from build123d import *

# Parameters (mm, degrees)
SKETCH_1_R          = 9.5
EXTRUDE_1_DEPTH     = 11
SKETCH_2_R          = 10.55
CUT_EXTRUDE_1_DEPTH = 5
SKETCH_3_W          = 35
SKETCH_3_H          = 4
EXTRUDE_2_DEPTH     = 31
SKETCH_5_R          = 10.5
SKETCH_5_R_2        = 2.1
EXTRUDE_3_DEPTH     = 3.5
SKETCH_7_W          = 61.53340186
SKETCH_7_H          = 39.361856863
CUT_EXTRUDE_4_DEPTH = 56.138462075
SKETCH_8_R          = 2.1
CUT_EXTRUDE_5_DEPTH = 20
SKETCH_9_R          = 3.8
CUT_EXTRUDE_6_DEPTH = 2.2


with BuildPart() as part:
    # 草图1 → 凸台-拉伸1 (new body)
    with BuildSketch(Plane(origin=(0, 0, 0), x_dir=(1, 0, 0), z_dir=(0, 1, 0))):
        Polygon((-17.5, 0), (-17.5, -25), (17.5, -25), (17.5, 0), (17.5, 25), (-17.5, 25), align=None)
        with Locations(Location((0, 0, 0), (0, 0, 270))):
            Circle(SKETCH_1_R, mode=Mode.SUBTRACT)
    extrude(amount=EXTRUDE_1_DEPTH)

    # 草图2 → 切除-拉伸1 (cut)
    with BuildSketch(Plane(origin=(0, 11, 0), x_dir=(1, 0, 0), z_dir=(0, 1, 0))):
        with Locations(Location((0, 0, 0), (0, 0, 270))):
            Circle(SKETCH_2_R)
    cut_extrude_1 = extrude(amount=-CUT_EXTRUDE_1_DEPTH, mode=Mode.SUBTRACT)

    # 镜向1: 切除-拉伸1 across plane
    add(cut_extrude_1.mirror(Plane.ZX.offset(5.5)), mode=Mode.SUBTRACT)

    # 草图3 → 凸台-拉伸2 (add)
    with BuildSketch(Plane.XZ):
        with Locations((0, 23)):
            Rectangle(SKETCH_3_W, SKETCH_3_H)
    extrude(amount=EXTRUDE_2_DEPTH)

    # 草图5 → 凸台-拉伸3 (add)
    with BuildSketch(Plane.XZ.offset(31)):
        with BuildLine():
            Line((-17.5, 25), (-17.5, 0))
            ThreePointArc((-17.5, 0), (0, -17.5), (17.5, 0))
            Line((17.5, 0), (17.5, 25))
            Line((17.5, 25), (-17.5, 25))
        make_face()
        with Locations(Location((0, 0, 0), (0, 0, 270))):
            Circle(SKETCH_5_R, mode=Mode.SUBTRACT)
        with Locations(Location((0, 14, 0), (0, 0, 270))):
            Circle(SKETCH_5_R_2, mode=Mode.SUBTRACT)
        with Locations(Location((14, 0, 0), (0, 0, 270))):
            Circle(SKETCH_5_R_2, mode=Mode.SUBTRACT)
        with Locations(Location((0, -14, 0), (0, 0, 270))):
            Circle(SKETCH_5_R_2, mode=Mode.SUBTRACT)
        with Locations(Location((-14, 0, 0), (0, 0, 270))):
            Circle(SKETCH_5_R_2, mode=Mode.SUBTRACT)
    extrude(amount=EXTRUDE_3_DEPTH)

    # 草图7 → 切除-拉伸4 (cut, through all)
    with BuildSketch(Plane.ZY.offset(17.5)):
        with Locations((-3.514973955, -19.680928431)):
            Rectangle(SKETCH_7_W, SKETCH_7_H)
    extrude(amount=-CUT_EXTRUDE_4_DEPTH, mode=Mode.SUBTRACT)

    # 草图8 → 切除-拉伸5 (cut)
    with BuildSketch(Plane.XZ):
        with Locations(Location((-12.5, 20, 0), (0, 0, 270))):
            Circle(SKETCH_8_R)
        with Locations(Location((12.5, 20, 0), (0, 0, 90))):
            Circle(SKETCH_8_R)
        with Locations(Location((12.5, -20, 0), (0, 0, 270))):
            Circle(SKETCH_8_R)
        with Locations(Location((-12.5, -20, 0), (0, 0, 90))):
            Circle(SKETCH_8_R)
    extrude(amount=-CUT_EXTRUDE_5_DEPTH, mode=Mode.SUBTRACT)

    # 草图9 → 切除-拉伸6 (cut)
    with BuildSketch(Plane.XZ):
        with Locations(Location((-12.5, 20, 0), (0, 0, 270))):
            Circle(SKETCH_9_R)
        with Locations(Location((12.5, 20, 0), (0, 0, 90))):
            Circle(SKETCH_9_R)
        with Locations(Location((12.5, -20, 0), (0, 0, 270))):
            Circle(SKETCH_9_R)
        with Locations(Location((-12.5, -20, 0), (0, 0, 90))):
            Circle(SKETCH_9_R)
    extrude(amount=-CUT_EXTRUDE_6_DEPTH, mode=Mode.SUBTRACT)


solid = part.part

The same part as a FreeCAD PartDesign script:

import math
import FreeCAD as App
import Part
import Sketcher
Q = App.Units.Quantity


def add_polygon(sketch, points):
    """Adds a closed chain of lines whose ends are joined by coincident constraints."""
    first, n = sketch.GeometryCount, len(points)
    for a, b in zip(points, points[1:] + points[:1]):
        sketch.addGeometry(Part.LineSegment(App.Vector(*a, 0), App.Vector(*b, 0)), False)
    for i in range(n):
        sketch.addConstraint(Sketcher.Constraint("Coincident", first + i, 2, first + (i + 1) % n, 1))

doc = App.newDocument("Part")
body = doc.addObject("PartDesign::Body", "Body")

# Sketch on XZ plane
sketch1 = body.newObject("Sketcher::SketchObject", "Sketch")
sketch1.AttachmentSupport = (doc.getObject("XZ_Plane"), [""])
sketch1.MapMode = "FlatFace"
add_polygon(sketch1, [(-18, 25), (18, 25), (18, -25), (-18, -25)])  # lines 0-3
sketch1.addGeometry(Part.Circle(App.Vector(0, 0, 0), App.Vector(0, 0, 1), 10), False)  # 4
sketch1.addConstraint(Sketcher.Constraint("Horizontal", 0))
sketch1.addConstraint(Sketcher.Constraint("Vertical", 1))
sketch1.addConstraint(Sketcher.Constraint("Horizontal", 2))
sketch1.addConstraint(Sketcher.Constraint("Vertical", 3))
sketch1.addConstraint(Sketcher.Constraint("Coincident", 4, 3, -1, 1))
sketch1.addConstraint(Sketcher.Constraint("Symmetric", 0, 2, 2, 2, -1, 1))
sketch1.addConstraint(Sketcher.Constraint("Diameter", 4, Q("19 mm")))
sketch1.addConstraint(Sketcher.Constraint("DistanceX", 0, 1, 0, 2, Q("35 mm")))
sketch1.addConstraint(Sketcher.Constraint("DistanceY", 1, 2, 1, 1, Q("50 mm")))
pad1 = body.newObject("PartDesign::Pad", "Pad")
pad1.Profile = sketch1
pad1.Length = 11
pad1.Reversed = True

# Sketch on XZ plane
sketch2 = body.newObject("Sketcher::SketchObject", "Sketch001")
sketch2.AttachmentSupport = (doc.getObject("XZ_Plane"), [""])
sketch2.MapMode = "FlatFace"
sketch2.AttachmentOffset = App.Placement(App.Vector(0, 0, -11), App.Rotation())
sketch2.addGeometry(Part.Circle(App.Vector(0, 0, 0), App.Vector(0, 0, 1), 11), False)
sketch2.addConstraint(Sketcher.Constraint("Coincident", 0, 3, -1, 1))
sketch2.addConstraint(Sketcher.Constraint("Diameter", 0, Q("21.1 mm")))
pocket1 = body.newObject("PartDesign::Pocket", "Pocket")
pocket1.Profile = sketch2
pocket1.Length = 5
pocket1.Reversed = True
doc.recompute()

datumplane = body.newObject("PartDesign::Plane", "DatumPlane")
datumplane.AttachmentSupport = (doc.getObject("XZ_Plane"), [""])
datumplane.MapMode = "FlatFace"
datumplane.AttachmentOffset = App.Placement(App.Vector(0, 0, -5.5), App.Rotation())
mirrored = body.newObject("PartDesign::Mirrored", "Mirrored")
mirrored.Originals = [pocket1]
mirrored.MirrorPlane = (datumplane, [""])
body.Tip = mirrored

# Sketch on XZ plane
sketch3 = body.newObject("Sketcher::SketchObject", "Sketch002")
sketch3.AttachmentSupport = (doc.getObject("XZ_Plane"), [""])
sketch3.MapMode = "FlatFace"
add_polygon(sketch3, [(-17.5, 25), (-17.5, 21), (17.5, 21), (17.5, 25)])  # lines 0-3
sketch3.addConstraint(Sketcher.Constraint("Vertical", 0))
sketch3.addConstraint(Sketcher.Constraint("Horizontal", 1))
sketch3.addConstraint(Sketcher.Constraint("Vertical", 2))
sketch3.addConstraint(Sketcher.Constraint("Horizontal", 3))
sketch3.addConstraint(Sketcher.Constraint("DistanceX", 1, 1, 1, 2, Q("35 mm")))
sketch3.addConstraint(Sketcher.Constraint("DistanceY", 0, 2, 0, 1, Q("4 mm")))
sketch3.addConstraint(Sketcher.Constraint("DistanceY", -1, 1, 0, 2, Q("21 mm")))
sketch3.addConstraint(Sketcher.Constraint("DistanceX", 0, 2, -1, 1, Q("17.5 mm")))
pad2 = body.newObject("PartDesign::Pad", "Pad001")
pad2.Profile = sketch3
pad2.Length = 31

# Sketch on XZ plane
sketch4 = body.newObject("Sketcher::SketchObject", "Sketch003")
sketch4.AttachmentSupport = (doc.getObject("XZ_Plane"), [""])
sketch4.MapMode = "FlatFace"
sketch4.AttachmentOffset = App.Placement(App.Vector(0, 0, 31), App.Rotation())
sketch4.addGeometry(Part.LineSegment(App.Vector(-17.5, 25, 0), App.Vector(-17.5, 0, 0)), False)
sketch4.addGeometry(Part.ArcOfCircle(Part.Circle(App.Vector(0, 0, 0), App.Vector(0, 0, 1), 17.5), math.radians(180), math.radians(360)), False)
sketch4.addGeometry(Part.LineSegment(App.Vector(17.5, 0, 0), App.Vector(17.5, 25, 0)), False)
sketch4.addGeometry(Part.LineSegment(App.Vector(17.5, 25, 0), App.Vector(-17.5, 25, 0)), False)
sketch4.addGeometry(Part.Circle(App.Vector(0, -14, 0), App.Vector(0, 0, 1), 2.1), False)
sketch4.addGeometry(Part.Circle(App.Vector(-14, 0, 0), App.Vector(0, 0, 1), 2.1), False)
sketch4.addGeometry(Part.Circle(App.Vector(0, 0, 0), App.Vector(0, 0, 1), 10.5), False)
sketch4.addGeometry(Part.Circle(App.Vector(14, 0, 0), App.Vector(0, 0, 1), 2.1), False)
sketch4.addGeometry(Part.Circle(App.Vector(0, 14, 0), App.Vector(0, 0, 1), 2.1), False)
sketch4.addConstraint(Sketcher.Constraint("Tangent", 0, 2, 1, 1))
sketch4.addConstraint(Sketcher.Constraint("Tangent", 1, 2, 2, 1))
sketch4.addConstraint(Sketcher.Constraint("Coincident", 2, 2, 3, 1))
sketch4.addConstraint(Sketcher.Constraint("Coincident", 3, 2, 0, 1))
sketch4.addConstraint(Sketcher.Constraint("Vertical", 0))
sketch4.addConstraint(Sketcher.Constraint("Vertical", 2))
sketch4.addConstraint(Sketcher.Constraint("Horizontal", 3))
sketch4.addConstraint(Sketcher.Constraint("Coincident", 1, 3, -1, 1))
sketch4.addConstraint(Sketcher.Constraint("Coincident", 6, 3, -1, 1))
sketch4.addConstraint(Sketcher.Constraint("Equal", 4, 5))
sketch4.addConstraint(Sketcher.Constraint("Equal", 5, 7))
sketch4.addConstraint(Sketcher.Constraint("Equal", 7, 8))
sketch4.addConstraint(Sketcher.Constraint("Symmetric", 5, 3, 7, 3, -1, 1))
sketch4.addConstraint(Sketcher.Constraint("Symmetric", 4, 3, 8, 3, -1, 1))
sketch4.addConstraint(Sketcher.Constraint("PointOnObject", 4, 3, -2))
sketch4.addConstraint(Sketcher.Constraint("PointOnObject", 5, 3, -1))
sketch4.addConstraint(Sketcher.Constraint("Diameter", 6, Q("21 mm")))
sketch4.addConstraint(Sketcher.Constraint("Diameter", 4, Q("4.2 mm")))
sketch4.addConstraint(Sketcher.Constraint("Radius", 1, Q("17.5 mm")))
sketch4.addConstraint(Sketcher.Constraint("DistanceY", 0, 2, 0, 1, Q("25 mm")))
sketch4.addConstraint(Sketcher.Constraint("DistanceY", 4, 3, -1, 1, Q("14 mm")))
sketch4.addConstraint(Sketcher.Constraint("DistanceX", 5, 3, -1, 1, Q("14 mm")))
pad3 = body.newObject("PartDesign::Pad", "Pad002")
pad3.Profile = sketch4
pad3.Length = 3.5

# Sketch on YZ plane
sketch5 = body.newObject("Sketcher::SketchObject", "Sketch004")
sketch5.AttachmentSupport = (doc.getObject("YZ_Plane"), [""])
sketch5.MapMode = "FlatFace"
sketch5.AttachmentOffset = App.Placement(App.Vector(0, 0, -17.5), App.Rotation())
add_polygon(sketch5, [(0, -34), (-39, -34), (-39, 27), (0, 27)])  # lines 0-3
sketch5.addConstraint(Sketcher.Constraint("Horizontal", 0))
sketch5.addConstraint(Sketcher.Constraint("Vertical", 1))
sketch5.addConstraint(Sketcher.Constraint("Horizontal", 2))
sketch5.addConstraint(Sketcher.Constraint("Vertical", 3))
sketch5.addConstraint(Sketcher.Constraint("PointOnObject", 2, 2, -2))
sketch5.addConstraint(Sketcher.Constraint("DistanceY", 1, 1, 1, 2, Q("61.533402 mm")))
sketch5.addConstraint(Sketcher.Constraint("DistanceX", 0, 2, 0, 1, Q("39.361857 mm")))
sketch5.addConstraint(Sketcher.Constraint("DistanceY", 0, 2, -1, 1, Q("34.281675 mm")))
pocket2 = body.newObject("PartDesign::Pocket", "Pocket001")
pocket2.Profile = sketch5
pocket2.Type = "ThroughAll"
pocket2.Reversed = True

# Sketch on XZ plane
sketch6 = body.newObject("Sketcher::SketchObject", "Sketch005")
sketch6.AttachmentSupport = (doc.getObject("XZ_Plane"), [""])
sketch6.MapMode = "FlatFace"
sketch6.addGeometry(Part.Circle(App.Vector(-12.5, 20, 0), App.Vector(0, 0, 1), 2.1), False)
sketch6.addGeometry(Part.Circle(App.Vector(12.5, 20, 0), App.Vector(0, 0, 1), 2.1), False)
sketch6.addGeometry(Part.Circle(App.Vector(12.5, -20, 0), App.Vector(0, 0, 1), 2.1), False)
sketch6.addGeometry(Part.Circle(App.Vector(-12.5, -20, 0), App.Vector(0, 0, 1), 2.1), False)
sketch6.addConstraint(Sketcher.Constraint("Equal", 0, 1))
sketch6.addConstraint(Sketcher.Constraint("Equal", 1, 2))
sketch6.addConstraint(Sketcher.Constraint("Equal", 2, 3))
sketch6.addConstraint(Sketcher.Constraint("Symmetric", 0, 3, 2, 3, -1, 1))
sketch6.addConstraint(Sketcher.Constraint("Symmetric", 1, 3, 3, 3, -1, 1))
sketch6.addConstraint(Sketcher.Constraint("Symmetric", 0, 3, 1, 3, -2))
sketch6.addConstraint(Sketcher.Constraint("Diameter", 0, Q("4.2 mm")))
sketch6.addConstraint(Sketcher.Constraint("DistanceY", -1, 1, 0, 3, Q("20 mm")))
sketch6.addConstraint(Sketcher.Constraint("DistanceX", 0, 3, 1, 3, Q("25 mm")))
pocket3 = body.newObject("PartDesign::Pocket", "Pocket002")
pocket3.Profile = sketch6
pocket3.Length = 20

# Sketch on XZ plane
sketch7 = body.newObject("Sketcher::SketchObject", "Sketch006")
sketch7.AttachmentSupport = (doc.getObject("XZ_Plane"), [""])
sketch7.MapMode = "FlatFace"
sketch7.addGeometry(Part.Circle(App.Vector(-12.5, 20, 0), App.Vector(0, 0, 1), 3.8), False)
sketch7.addGeometry(Part.Circle(App.Vector(12.5, 20, 0), App.Vector(0, 0, 1), 3.8), False)
sketch7.addGeometry(Part.Circle(App.Vector(12.5, -20, 0), App.Vector(0, 0, 1), 3.8), False)
sketch7.addGeometry(Part.Circle(App.Vector(-12.5, -20, 0), App.Vector(0, 0, 1), 3.8), False)
sketch7.addConstraint(Sketcher.Constraint("Equal", 0, 1))
sketch7.addConstraint(Sketcher.Constraint("Equal", 1, 2))
sketch7.addConstraint(Sketcher.Constraint("Equal", 2, 3))
sketch7.addConstraint(Sketcher.Constraint("Symmetric", 0, 3, 2, 3, -1, 1))
sketch7.addConstraint(Sketcher.Constraint("Symmetric", 1, 3, 3, 3, -1, 1))
sketch7.addConstraint(Sketcher.Constraint("Symmetric", 0, 3, 1, 3, -2))
sketch7.addConstraint(Sketcher.Constraint("Diameter", 0, Q("7.6 mm")))
sketch7.addConstraint(Sketcher.Constraint("DistanceY", -1, 1, 0, 3, Q("20 mm")))
sketch7.addConstraint(Sketcher.Constraint("DistanceX", 0, 3, 1, 3, Q("25 mm")))
pocket4 = body.newObject("PartDesign::Pocket", "Pocket003")
pocket4.Profile = sketch7
pocket4.Length = 2.2

doc.recompute()
